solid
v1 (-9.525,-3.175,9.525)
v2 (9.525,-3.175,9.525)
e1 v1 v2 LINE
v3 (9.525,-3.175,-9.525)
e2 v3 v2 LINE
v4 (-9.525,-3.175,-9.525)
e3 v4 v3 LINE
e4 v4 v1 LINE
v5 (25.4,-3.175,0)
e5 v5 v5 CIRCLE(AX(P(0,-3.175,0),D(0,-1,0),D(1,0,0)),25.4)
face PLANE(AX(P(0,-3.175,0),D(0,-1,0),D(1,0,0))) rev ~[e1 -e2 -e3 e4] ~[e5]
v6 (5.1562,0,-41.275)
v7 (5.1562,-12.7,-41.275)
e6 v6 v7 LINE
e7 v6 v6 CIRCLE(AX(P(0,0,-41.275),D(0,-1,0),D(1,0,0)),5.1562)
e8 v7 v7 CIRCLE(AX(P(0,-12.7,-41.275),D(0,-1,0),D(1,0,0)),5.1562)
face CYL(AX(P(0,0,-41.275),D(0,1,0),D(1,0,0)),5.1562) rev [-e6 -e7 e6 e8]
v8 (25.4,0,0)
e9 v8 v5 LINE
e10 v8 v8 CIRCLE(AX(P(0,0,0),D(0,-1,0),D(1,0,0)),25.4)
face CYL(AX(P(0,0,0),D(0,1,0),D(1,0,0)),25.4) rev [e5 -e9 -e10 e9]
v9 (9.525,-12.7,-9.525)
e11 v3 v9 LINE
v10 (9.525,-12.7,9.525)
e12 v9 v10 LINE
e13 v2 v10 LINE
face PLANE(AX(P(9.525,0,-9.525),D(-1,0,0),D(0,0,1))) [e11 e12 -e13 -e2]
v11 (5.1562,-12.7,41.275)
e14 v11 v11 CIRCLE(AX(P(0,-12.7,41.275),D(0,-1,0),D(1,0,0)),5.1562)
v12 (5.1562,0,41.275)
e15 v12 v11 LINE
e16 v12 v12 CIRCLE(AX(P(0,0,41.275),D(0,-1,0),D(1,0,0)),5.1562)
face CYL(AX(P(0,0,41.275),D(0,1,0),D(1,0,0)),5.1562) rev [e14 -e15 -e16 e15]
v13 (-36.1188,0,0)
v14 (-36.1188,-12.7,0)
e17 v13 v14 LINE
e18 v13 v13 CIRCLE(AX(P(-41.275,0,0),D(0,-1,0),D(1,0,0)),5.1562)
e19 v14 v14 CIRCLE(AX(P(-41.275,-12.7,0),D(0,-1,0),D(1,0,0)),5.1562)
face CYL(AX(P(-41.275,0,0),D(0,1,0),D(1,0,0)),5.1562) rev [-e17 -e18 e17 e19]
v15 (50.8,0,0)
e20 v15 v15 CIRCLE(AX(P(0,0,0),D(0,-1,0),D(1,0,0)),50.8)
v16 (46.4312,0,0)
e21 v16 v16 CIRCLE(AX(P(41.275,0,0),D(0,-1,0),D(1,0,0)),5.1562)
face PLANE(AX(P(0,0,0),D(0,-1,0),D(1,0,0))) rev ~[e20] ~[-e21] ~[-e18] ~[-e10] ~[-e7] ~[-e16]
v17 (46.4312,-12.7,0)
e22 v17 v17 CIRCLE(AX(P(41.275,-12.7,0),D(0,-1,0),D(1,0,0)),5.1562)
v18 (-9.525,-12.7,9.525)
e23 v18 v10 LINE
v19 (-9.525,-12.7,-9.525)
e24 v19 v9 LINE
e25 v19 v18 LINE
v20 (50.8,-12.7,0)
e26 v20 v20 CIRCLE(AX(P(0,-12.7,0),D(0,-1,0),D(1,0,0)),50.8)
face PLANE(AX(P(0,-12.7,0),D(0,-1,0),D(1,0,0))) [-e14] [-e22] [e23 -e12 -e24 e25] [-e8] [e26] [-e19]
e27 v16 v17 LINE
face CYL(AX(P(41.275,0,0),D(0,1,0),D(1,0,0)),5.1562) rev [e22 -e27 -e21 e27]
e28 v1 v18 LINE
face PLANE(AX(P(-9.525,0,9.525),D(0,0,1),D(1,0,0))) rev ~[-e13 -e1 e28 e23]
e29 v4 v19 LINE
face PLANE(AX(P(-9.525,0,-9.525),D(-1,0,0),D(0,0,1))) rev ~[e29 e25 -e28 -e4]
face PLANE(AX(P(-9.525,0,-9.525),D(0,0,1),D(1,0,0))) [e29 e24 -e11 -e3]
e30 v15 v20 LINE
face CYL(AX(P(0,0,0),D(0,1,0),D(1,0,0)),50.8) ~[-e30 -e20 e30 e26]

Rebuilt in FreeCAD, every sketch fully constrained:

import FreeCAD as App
import Part
import Sketcher
Q = App.Units.Quantity


def add_polygon(sketch, points):
    """Adds a closed chain of lines whose ends are joined by coincident constraints."""
    first, n = sketch.GeometryCount, len(points)
    for a, b in zip(points, points[1:] + points[:1]):
        sketch.addGeometry(Part.LineSegment(App.Vector(*a, 0), App.Vector(*b, 0)), False)
    for i in range(n):
        sketch.addConstraint(Sketcher.Constraint("Coincident", first + i, 2, first + (i + 1) % n, 1))

doc = App.newDocument("Part")
body = doc.addObject("PartDesign::Body", "Body")

sketch1 = doc.addObject("Sketcher::SketchObject", "Sketch")
body.addObject(sketch1)
sketch1.AttachmentSupport = (doc.XZ_Plane, [""])
sketch1.MapMode = "FlatFace"
sketch1.addGeometry(Part.Circle(App.Vector(0, 0, 0), App.Vector(0, 0, 1), 51), False)
sketch1.addGeometry(Part.Circle(App.Vector(0, -41, 0), App.Vector(0, 0, 1), 5), False)
sketch1.addGeometry(Part.Circle(App.Vector(-41, 0, 0), App.Vector(0, 0, 1), 5), False)
add_polygon(sketch1, [(10, -10), (-10, -10), (-10, 10), (10, 10)])
sketch1.addGeometry(Part.Circle(App.Vector(41, 0, 0), App.Vector(0, 0, 1), 5), False)
sketch1.addGeometry(Part.Circle(App.Vector(0, 41, 0), App.Vector(0, 0, 1), 5), False)
sketch1.addConstraint(Sketcher.Constraint("Horizontal", 3))
sketch1.addConstraint(Sketcher.Constraint("Vertical", 4))
sketch1.addConstraint(Sketcher.Constraint("Horizontal", 5))
sketch1.addConstraint(Sketcher.Constraint("Vertical", 6))
sketch1.addConstraint(Sketcher.Constraint("Coincident", 0, 3, -1, 1))
sketch1.addConstraint(Sketcher.Constraint("Equal", 1, 2))
sketch1.addConstraint(Sketcher.Constraint("Equal", 2, 7))
sketch1.addConstraint(Sketcher.Constraint("Equal", 7, 8))
sketch1.addConstraint(Sketcher.Constraint("Symmetric", 2, 3, 7, 3, -1, 1))
sketch1.addConstraint(Sketcher.Constraint("Symmetric", 1, 3, 8, 3, -1, 1))
sketch1.addConstraint(Sketcher.Constraint("Symmetric", 3, 2, 5, 2, -1, 1))
sketch1.addConstraint(Sketcher.Constraint("PointOnObject", 1, 3, -2))
sketch1.addConstraint(Sketcher.Constraint("PointOnObject", 2, 3, -1))
sketch1.addConstraint(Sketcher.Constraint("Equal", 5, 4))
sketch1.addConstraint(Sketcher.Constraint("Diameter", 0, Q("4 in")))
sketch1.addConstraint(Sketcher.Constraint("Diameter", 1, Q("0.406 in")))
sketch1.addConstraint(Sketcher.Constraint("DistanceX", 3, 2, 7, 3, Q("2 in")))
sketch1.addConstraint(Sketcher.Constraint("DistanceY", 3, 2, 8, 3, Q("2 in")))
sketch1.addConstraint(Sketcher.Constraint("DistanceX", 3, 2, 3, 1, Q("0.75 in")))
pad1 = doc.addObject("PartDesign::Pad", "Pad")
body.addObject(pad1)
pad1.Profile = sketch1
pad1.Length = Q("0.5 in")

sketch2 = doc.addObject("Sketcher::SketchObject", "Sketch001")
body.addObject(sketch2)
sketch2.AttachmentSupport = (doc.XZ_Plane, [""])
sketch2.MapMode = "FlatFace"
sketch2.addGeometry(Part.Circle(App.Vector(0, 0, 0), App.Vector(0, 0, 1), 25), False)
sketch2.addConstraint(Sketcher.Constraint("Coincident", 0, 3, -1, 1))
sketch2.addConstraint(Sketcher.Constraint("Diameter", 0, Q("2 in")))
pocket1 = doc.addObject("PartDesign::Pocket", "Pocket")
body.addObject(pocket1)
pocket1.Profile = sketch2
pocket1.Length = Q("0.125 in")
pocket1.Reversed = True

doc.recompute()
